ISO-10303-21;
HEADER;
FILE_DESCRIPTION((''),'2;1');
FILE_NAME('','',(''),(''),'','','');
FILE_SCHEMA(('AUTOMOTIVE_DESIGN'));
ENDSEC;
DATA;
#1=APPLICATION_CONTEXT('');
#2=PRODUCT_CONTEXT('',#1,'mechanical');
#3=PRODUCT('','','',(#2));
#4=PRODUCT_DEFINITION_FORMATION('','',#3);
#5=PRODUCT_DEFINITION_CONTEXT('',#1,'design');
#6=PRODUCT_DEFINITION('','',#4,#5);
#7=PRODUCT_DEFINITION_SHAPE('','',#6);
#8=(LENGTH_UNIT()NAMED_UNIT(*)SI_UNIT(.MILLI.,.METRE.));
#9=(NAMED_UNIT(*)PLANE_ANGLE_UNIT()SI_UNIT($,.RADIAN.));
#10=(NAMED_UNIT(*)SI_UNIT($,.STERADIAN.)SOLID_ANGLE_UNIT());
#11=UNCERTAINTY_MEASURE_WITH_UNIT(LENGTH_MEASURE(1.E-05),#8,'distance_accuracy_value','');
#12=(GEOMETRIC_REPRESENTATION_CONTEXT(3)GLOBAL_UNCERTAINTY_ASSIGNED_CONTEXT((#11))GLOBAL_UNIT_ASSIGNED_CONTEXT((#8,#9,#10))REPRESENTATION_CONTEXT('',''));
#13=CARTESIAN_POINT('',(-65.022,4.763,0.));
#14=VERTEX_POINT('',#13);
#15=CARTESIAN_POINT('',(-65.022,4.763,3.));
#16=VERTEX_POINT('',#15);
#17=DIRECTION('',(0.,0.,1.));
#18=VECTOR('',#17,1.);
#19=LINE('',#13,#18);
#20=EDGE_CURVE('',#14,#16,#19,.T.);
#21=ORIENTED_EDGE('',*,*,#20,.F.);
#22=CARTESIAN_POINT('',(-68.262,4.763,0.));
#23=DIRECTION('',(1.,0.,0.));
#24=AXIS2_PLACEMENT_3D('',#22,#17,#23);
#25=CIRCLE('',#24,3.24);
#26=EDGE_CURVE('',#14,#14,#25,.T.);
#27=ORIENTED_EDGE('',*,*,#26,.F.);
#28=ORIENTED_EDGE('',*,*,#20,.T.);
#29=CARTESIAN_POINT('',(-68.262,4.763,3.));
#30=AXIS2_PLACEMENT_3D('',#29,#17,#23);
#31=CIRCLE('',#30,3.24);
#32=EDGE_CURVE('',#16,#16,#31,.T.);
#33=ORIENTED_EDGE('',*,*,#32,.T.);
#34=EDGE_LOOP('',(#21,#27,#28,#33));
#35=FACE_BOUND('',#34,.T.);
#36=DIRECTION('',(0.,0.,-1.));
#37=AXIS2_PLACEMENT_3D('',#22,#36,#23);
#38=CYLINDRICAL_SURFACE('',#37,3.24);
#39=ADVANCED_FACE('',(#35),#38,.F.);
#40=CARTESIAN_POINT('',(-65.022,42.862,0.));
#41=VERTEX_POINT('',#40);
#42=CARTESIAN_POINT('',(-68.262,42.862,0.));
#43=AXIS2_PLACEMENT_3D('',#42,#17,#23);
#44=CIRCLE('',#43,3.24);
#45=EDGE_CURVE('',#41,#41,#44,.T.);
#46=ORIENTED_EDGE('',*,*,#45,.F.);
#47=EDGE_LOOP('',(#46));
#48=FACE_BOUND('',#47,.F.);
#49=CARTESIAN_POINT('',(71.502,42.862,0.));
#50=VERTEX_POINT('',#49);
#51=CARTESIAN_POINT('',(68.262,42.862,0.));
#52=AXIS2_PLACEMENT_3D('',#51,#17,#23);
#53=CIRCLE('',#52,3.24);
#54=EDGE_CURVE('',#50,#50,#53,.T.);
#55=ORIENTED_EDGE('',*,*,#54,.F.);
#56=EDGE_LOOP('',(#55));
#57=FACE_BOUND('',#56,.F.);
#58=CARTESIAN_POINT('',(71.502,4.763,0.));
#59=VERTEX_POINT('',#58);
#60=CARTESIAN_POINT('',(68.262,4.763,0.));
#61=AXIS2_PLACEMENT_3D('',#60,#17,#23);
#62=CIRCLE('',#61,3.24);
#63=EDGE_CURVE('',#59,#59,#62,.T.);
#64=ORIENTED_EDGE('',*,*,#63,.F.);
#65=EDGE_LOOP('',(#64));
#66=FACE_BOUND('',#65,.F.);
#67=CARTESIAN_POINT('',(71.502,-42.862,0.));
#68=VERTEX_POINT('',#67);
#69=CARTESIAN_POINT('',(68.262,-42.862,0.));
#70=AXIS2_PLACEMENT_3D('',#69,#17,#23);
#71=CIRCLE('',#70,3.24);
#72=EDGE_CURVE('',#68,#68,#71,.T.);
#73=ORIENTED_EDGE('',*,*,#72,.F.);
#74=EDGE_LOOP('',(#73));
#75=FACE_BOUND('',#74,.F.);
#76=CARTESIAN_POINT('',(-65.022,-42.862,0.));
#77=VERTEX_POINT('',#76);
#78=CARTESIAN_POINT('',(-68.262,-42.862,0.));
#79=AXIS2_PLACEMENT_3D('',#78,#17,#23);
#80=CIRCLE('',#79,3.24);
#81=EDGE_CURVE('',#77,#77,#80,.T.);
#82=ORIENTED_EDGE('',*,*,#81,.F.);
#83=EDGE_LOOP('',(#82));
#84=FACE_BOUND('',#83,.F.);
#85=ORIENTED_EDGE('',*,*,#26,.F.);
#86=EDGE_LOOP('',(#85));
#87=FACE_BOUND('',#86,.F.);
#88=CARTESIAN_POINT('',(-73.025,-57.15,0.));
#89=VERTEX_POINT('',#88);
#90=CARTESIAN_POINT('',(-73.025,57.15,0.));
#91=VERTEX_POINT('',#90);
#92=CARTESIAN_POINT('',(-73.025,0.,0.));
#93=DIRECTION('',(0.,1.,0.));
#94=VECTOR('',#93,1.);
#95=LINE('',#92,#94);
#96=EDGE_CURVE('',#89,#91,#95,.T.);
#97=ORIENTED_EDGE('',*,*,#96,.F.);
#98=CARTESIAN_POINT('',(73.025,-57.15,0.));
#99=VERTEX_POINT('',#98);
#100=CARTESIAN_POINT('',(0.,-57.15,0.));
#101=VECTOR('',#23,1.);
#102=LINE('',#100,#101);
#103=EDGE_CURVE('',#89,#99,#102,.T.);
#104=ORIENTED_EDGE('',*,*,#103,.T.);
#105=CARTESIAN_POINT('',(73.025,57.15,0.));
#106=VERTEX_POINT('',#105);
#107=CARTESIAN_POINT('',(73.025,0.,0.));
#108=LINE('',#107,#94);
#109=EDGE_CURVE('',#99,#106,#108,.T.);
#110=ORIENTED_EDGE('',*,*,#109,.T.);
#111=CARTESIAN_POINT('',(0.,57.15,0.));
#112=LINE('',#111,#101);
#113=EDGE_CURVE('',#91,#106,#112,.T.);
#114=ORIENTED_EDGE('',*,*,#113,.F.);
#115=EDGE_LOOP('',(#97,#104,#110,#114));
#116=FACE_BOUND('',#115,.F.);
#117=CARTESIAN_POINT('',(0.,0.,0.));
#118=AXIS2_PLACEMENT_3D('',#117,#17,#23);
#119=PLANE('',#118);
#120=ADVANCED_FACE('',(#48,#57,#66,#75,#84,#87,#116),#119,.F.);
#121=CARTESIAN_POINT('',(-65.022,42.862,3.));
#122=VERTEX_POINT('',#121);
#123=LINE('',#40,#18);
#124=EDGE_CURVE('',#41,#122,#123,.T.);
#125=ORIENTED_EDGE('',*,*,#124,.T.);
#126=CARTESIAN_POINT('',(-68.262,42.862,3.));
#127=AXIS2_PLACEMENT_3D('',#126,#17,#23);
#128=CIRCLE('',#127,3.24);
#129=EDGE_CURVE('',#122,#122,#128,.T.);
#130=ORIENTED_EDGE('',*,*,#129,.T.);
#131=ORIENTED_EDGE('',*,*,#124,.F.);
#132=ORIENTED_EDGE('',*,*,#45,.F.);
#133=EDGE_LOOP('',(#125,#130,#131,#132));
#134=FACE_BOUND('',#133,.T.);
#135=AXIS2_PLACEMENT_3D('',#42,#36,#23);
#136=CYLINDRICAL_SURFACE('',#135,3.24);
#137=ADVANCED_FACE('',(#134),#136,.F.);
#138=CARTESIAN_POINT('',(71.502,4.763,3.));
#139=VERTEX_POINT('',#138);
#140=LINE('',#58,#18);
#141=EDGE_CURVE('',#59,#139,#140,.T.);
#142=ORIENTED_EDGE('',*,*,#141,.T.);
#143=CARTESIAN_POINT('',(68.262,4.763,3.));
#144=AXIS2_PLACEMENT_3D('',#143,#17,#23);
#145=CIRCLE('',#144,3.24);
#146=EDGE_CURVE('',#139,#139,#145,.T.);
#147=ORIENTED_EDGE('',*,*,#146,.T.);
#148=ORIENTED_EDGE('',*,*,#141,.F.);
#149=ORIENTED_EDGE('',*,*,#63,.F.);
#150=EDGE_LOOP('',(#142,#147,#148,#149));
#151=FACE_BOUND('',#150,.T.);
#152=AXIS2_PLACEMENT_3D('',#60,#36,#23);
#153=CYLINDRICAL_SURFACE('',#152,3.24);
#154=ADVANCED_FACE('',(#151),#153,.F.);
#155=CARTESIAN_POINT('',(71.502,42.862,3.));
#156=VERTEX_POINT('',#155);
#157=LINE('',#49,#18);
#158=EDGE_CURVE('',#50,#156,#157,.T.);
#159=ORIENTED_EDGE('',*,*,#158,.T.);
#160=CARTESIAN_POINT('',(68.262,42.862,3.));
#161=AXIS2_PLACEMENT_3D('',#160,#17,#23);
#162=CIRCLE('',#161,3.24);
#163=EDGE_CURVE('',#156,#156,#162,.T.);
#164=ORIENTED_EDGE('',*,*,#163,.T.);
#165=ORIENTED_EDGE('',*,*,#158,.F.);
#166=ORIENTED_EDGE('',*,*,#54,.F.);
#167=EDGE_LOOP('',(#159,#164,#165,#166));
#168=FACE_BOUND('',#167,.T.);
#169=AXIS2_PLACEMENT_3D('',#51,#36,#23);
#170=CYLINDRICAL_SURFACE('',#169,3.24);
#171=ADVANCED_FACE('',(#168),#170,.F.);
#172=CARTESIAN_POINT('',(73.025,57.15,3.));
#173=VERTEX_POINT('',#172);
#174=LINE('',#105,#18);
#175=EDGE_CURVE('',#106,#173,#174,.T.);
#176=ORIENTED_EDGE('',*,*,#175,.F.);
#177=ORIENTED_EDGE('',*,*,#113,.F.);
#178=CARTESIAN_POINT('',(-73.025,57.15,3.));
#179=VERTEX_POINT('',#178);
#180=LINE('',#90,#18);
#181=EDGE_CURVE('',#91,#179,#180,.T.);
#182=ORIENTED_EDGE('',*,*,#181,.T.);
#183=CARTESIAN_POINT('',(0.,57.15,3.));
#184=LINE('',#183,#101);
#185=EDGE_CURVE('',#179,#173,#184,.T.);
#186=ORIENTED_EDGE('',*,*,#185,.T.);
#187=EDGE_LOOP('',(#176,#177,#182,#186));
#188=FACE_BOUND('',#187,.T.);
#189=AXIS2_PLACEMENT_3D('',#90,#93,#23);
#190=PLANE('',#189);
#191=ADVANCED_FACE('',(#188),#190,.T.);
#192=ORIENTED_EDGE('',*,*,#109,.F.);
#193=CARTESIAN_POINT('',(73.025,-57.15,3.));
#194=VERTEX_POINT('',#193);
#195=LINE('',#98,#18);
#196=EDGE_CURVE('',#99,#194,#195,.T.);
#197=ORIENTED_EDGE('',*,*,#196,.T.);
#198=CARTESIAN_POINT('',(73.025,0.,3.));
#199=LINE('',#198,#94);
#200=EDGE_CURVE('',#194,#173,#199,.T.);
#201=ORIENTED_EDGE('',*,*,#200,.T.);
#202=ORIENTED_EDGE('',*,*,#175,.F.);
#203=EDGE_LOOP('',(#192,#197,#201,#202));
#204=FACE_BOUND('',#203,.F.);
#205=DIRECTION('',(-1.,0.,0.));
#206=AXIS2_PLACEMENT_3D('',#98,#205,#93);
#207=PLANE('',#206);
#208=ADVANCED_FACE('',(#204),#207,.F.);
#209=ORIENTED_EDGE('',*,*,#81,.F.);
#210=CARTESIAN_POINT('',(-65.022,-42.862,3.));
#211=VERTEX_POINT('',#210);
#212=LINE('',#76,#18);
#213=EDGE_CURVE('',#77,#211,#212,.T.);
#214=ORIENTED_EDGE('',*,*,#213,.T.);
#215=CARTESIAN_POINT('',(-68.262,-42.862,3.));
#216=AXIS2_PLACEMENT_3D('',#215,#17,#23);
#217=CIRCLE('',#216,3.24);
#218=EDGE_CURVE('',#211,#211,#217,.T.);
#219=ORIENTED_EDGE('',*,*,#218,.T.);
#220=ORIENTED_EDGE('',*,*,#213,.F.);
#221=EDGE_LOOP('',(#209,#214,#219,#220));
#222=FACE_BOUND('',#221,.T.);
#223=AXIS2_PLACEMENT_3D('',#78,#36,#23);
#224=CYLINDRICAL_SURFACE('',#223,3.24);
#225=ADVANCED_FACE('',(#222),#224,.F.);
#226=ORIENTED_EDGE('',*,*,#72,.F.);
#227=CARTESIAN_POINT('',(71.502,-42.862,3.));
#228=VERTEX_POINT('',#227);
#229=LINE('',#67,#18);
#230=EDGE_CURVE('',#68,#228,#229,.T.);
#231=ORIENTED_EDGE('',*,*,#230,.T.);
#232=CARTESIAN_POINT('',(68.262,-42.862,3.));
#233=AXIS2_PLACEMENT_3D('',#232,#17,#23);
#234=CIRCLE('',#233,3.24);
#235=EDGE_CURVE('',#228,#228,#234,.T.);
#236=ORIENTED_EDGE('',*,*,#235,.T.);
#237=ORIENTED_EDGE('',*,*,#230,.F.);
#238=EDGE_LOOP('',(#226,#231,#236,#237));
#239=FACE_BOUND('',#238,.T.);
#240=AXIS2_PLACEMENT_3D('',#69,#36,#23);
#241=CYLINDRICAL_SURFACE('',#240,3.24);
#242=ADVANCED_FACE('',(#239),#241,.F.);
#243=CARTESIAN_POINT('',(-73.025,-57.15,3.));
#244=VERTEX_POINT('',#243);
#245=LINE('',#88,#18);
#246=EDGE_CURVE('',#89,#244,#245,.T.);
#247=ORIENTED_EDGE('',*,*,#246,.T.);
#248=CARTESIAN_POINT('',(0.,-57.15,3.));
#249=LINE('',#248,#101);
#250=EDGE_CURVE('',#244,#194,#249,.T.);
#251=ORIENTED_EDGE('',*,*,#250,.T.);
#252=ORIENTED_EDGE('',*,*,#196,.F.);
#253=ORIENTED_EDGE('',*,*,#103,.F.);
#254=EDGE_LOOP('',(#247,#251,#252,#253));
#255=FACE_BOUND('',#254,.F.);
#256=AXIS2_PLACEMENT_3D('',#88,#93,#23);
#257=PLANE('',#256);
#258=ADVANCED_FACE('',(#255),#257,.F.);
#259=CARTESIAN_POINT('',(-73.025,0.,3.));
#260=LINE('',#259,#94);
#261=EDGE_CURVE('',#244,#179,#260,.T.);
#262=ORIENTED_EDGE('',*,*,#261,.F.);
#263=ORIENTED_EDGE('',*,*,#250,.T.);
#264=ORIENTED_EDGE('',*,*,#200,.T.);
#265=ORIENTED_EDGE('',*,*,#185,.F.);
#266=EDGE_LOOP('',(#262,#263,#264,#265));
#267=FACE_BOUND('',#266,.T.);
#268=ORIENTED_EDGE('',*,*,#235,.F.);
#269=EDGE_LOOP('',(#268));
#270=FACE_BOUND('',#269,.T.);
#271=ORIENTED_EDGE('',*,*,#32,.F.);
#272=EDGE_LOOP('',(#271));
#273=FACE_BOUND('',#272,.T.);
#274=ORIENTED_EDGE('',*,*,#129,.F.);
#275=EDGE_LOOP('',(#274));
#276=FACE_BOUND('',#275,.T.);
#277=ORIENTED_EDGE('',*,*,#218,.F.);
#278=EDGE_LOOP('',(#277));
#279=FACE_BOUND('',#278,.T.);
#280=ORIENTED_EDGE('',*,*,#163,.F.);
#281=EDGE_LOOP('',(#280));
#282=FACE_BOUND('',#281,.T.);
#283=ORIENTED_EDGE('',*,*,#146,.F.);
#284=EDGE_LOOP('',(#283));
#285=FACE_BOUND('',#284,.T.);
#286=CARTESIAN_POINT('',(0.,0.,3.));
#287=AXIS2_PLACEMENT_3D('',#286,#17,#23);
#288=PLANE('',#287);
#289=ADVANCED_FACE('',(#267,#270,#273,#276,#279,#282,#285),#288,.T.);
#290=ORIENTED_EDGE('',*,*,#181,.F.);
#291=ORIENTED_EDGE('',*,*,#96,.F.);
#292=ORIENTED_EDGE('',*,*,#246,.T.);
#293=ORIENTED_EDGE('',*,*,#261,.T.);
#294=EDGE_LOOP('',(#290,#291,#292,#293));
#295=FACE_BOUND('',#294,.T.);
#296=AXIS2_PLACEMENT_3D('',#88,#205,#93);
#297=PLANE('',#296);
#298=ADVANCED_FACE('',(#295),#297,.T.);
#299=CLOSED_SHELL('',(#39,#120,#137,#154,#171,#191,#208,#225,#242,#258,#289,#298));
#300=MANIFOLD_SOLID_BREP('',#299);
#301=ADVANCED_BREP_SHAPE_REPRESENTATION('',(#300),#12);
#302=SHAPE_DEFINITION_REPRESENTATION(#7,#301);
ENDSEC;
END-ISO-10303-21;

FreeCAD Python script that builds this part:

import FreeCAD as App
import Part
import Sketcher
Q = App.Units.Quantity


def add_polygon(sketch, points):
    """Adds a closed chain of lines whose ends are joined by coincident constraints."""
    first, n = sketch.GeometryCount, len(points)
    for a, b in zip(points, points[1:] + points[:1]):
        sketch.addGeometry(Part.LineSegment(App.Vector(*a, 0), App.Vector(*b, 0)), False)
    for i in range(n):
        sketch.addConstraint(Sketcher.Constraint("Coincident", first + i, 2, first + (i + 1) % n, 1))

doc = App.newDocument("Part")
body = doc.addObject("PartDesign::Body", "Body")

sketch1 = doc.addObject("Sketcher::SketchObject", "Sketch")
body.addObject(sketch1)
sketch1.AttachmentSupport = (doc.XY_Plane, [""])
sketch1.MapMode = "FlatFace"
add_polygon(sketch1, [(-73, 57.1), (-73, -57.1), (73, -57.1), (73, 57.1)])
sketch1.addGeometry(Part.Circle(App.Vector(-68.3, -42.9, 0), App.Vector(0, 0, 1), 3.2), False)
sketch1.addGeometry(Part.Circle(App.Vector(68.3, -42.9, 0), App.Vector(0, 0, 1), 3.2), False)
sketch1.addGeometry(Part.Circle(App.Vector(-68.3, 4.8, 0), App.Vector(0, 0, 1), 3.2), False)
sketch1.addGeometry(Part.Circle(App.Vector(-68.3, 42.9, 0), App.Vector(0, 0, 1), 3.2), False)
sketch1.addGeometry(Part.Circle(App.Vector(68.3, 4.8, 0), App.Vector(0, 0, 1), 3.2), False)
sketch1.addGeometry(Part.Circle(App.Vector(68.3, 42.9, 0), App.Vector(0, 0, 1), 3.2), False)
sketch1.addConstraint(Sketcher.Constraint("Vertical", 0))
sketch1.addConstraint(Sketcher.Constraint("Horizontal", 1))
sketch1.addConstraint(Sketcher.Constraint("Vertical", 2))
sketch1.addConstraint(Sketcher.Constraint("Horizontal", 3))
sketch1.addConstraint(Sketcher.Constraint("Equal", 4, 5))
sketch1.addConstraint(Sketcher.Constraint("Equal", 5, 6))
sketch1.addConstraint(Sketcher.Constraint("Equal", 6, 7))
sketch1.addConstraint(Sketcher.Constraint("Equal", 7, 8))
sketch1.addConstraint(Sketcher.Constraint("Equal", 8, 9))
sketch1.addConstraint(Sketcher.Constraint("Symmetric", 5, 3, 7, 3, -1, 1))
sketch1.addConstraint(Sketcher.Constraint("Symmetric", 4, 3, 9, 3, -1, 1))
sketch1.addConstraint(Sketcher.Constraint("Symmetric", 0, 2, 2, 2, -1, 1))
sketch1.addConstraint(Sketcher.Constraint("Symmetric", 4, 3, 5, 3, -2))
sketch1.addConstraint(Sketcher.Constraint("Symmetric", 6, 3, 8, 3, -2))
sketch1.addConstraint(Sketcher.Constraint("Vertical", 4, 3, 6, 3))
sketch1.addConstraint(Sketcher.Constraint("DistanceY", 0, 2, 0, 1, Q("4.5 in")))
sketch1.addConstraint(Sketcher.Constraint("DistanceX", 1, 1, 1, 2, Q("5.75 in")))
sketch1.addConstraint(Sketcher.Constraint("Diameter", 4, 6.48))
sketch1.addConstraint(Sketcher.Constraint("DistanceY", 4, 3, 6, 3, Q("1.875 in")))
sketch1.addConstraint(Sketcher.Constraint("DistanceX", 4, 3, -1, 1, 68.262))
sketch1.addConstraint(Sketcher.Constraint("DistanceY", 4, 3, -1, 1, 42.862))
pad1 = doc.addObject("PartDesign::Pad", "Pad")
body.addObject(pad1)
pad1.Profile = sketch1
pad1.Length = 3

doc.recompute()
